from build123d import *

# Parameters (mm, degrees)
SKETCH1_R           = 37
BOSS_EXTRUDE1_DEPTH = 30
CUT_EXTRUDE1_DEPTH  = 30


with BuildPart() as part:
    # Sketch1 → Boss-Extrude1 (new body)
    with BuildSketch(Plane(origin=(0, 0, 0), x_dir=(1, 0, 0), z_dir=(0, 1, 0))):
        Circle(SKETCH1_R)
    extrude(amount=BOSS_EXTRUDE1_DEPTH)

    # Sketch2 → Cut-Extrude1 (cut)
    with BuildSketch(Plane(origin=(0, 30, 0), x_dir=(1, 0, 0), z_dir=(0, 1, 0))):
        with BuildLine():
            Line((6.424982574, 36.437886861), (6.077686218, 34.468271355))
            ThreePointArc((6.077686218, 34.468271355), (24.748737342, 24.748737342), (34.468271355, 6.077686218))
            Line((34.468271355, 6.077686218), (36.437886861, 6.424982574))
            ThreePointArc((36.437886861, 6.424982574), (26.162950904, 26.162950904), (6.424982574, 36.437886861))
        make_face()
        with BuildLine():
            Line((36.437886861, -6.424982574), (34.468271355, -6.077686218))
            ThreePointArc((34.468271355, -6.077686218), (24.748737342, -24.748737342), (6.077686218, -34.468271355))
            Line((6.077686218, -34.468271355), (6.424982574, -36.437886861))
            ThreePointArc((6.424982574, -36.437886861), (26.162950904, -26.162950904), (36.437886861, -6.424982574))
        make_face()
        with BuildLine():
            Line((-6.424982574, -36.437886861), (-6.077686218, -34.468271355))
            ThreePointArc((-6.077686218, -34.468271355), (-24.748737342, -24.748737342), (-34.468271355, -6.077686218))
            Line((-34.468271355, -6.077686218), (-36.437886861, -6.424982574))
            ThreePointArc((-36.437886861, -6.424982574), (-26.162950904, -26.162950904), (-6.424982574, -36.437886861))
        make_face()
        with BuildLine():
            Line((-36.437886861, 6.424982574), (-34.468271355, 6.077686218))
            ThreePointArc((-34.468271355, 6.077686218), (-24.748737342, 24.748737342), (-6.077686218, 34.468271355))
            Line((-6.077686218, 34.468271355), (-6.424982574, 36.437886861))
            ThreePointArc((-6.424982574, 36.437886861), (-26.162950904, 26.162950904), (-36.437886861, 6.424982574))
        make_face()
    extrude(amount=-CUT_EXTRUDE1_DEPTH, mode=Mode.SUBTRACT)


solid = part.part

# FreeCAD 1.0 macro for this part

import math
import FreeCAD as App
import Part
import Sketcher

V = App.Vector
Q = App.Units.Quantity

doc = App.newDocument("Part")
params = doc.addObject("Spreadsheet::Sheet", "Params")
for row, (alias, value) in enumerate([
    ("sketch1_diameter", "74 mm"),
    ("pad1_length", "30 mm"),
    ("sketch2_radius", "35 mm"),
    ("sketch2_radius2", "37 mm"),
    ("pocket1_length", "30 mm"),
], start=1):
    params.set(f"A{row}", alias)
    params.set(f"B{row}", "=" + value)
    params.setAlias(f"B{row}", alias)

body = doc.addObject("PartDesign::Body", "Body")

# Sketch on XZ plane
sketch1 = body.newObject("Sketcher::SketchObject", "Sketch")
sketch1.AttachmentSupport = (doc.getObject("XZ_Plane"), [""])
sketch1.MapMode = "FlatFace"
sketch1.addGeometry(Part.Circle(V(0, 0, 0), V(0, 0, 1), 37), False)
sketch1.addConstraint(Sketcher.Constraint("Coincident", 0, 3, -1, 1))
sketch1.addConstraint(Sketcher.Constraint("Diameter", 0, Q("74 mm")))
sketch1.setExpression("Constraints[1]", "Params.sketch1_diameter")
pad1 = body.newObject("PartDesign::Pad", "Pad")
pad1.Profile = sketch1
pad1.setExpression("Length", "Params.pad1_length")
pad1.Reversed = True

# Sketch on XZ plane
sketch2 = body.newObject("Sketcher::SketchObject", "Sketch001")
sketch2.AttachmentSupport = (doc.getObject("XZ_Plane"), [""])
sketch2.MapMode = "FlatFace"
sketch2.AttachmentOffset = App.Placement(V(0, 0, -30), App.Rotation())
sketch2.addGeometry(Part.LineSegment(V(6.4, -36.4, 0), V(6.1, -34.5, 0)), False)
sketch2.addGeometry(Part.ArcOfCircle(Part.Circle(V(0, 0, 0), V(0, 0, 1), 35), math.radians(-80), math.radians(-10)), False)
sketch2.addGeometry(Part.LineSegment(V(34.5, -6.1, 0), V(36.4, -6.4, 0)), False)
sketch2.addGeometry(Part.ArcOfCircle(Part.Circle(V(0, 0, 0), V(0, 0, 1), 37), math.radians(-80), math.radians(-10)), False)
sketch2.addGeometry(Part.LineSegment(V(36.4, 6.4, 0), V(34.5, 6.1, 0)), False)
sketch2.addGeometry(Part.ArcOfCircle(Part.Circle(V(0, 0, 0), V(0, 0, 1), 35), math.radians(10), math.radians(80)), False)
sketch2.addGeometry(Part.LineSegment(V(6.1, 34.5, 0), V(6.4, 36.4, 0)), False)
sketch2.addGeometry(Part.ArcOfCircle(Part.Circle(V(0, 0, 0), V(0, 0, 1), 37), math.radians(10), math.radians(80)), False)
sketch2.addGeometry(Part.LineSegment(V(-6.4, 36.4, 0), V(-6.1, 34.5, 0)), False)
sketch2.addGeometry(Part.ArcOfCircle(Part.Circle(V(0, 0, 0), V(0, 0, 1), 35), math.radians(100), math.radians(170)), False)
sketch2.addGeometry(Part.LineSegment(V(-34.5, 6.1, 0), V(-36.4, 6.4, 0)), False)
sketch2.addGeometry(Part.ArcOfCircle(Part.Circle(V(0, 0, 0), V(0, 0, 1), 37), math.radians(100), math.radians(170)), False)
sketch2.addGeometry(Part.LineSegment(V(-36.4, -6.4, 0), V(-34.5, -6.1, 0)), False)
sketch2.addGeometry(Part.ArcOfCircle(Part.Circle(V(0, 0, 0), V(0, 0, 1), 35), math.radians(-170), math.radians(-100)), False)
sketch2.addGeometry(Part.LineSegment(V(-6.1, -34.5, 0), V(-6.4, -36.4, 0)), False)
sketch2.addGeometry(Part.ArcOfCircle(Part.Circle(V(0, 0, 0), V(0, 0, 1), 37), math.radians(-170), math.radians(-100)), False)
sketch2.addConstraint(Sketcher.Constraint("Coincident", 0, 2, 1, 1))
sketch2.addConstraint(Sketcher.Constraint("Coincident", 1, 2, 2, 1))
sketch2.addConstraint(Sketcher.Constraint("Coincident", 2, 2, 3, 2))
sketch2.addConstraint(Sketcher.Constraint("Coincident", 3, 1, 0, 1))
sketch2.addConstraint(Sketcher.Constraint("Coincident", 4, 2, 5, 1))
sketch2.addConstraint(Sketcher.Constraint("Coincident", 5, 2, 6, 1))
sketch2.addConstraint(Sketcher.Constraint("Coincident", 6, 2, 7, 2))
sketch2.addConstraint(Sketcher.Constraint("Coincident", 7, 1, 4, 1))
sketch2.addConstraint(Sketcher.Constraint("Coincident", 8, 2, 9, 1))
sketch2.addConstraint(Sketcher.Constraint("Coincident", 9, 2, 10, 1))
sketch2.addConstraint(Sketcher.Constraint("Coincident", 10, 2, 11, 2))
sketch2.addConstraint(Sketcher.Constraint("Coincident", 11, 1, 8, 1))
sketch2.addConstraint(Sketcher.Constraint("Coincident", 12, 2, 13, 1))
sketch2.addConstraint(Sketcher.Constraint("Coincident", 13, 2, 14, 1))
sketch2.addConstraint(Sketcher.Constraint("Coincident", 14, 2, 15, 2))
sketch2.addConstraint(Sketcher.Constraint("Coincident", 15, 1, 12, 1))
sketch2.addConstraint(Sketcher.Constraint("Coincident", 1, 3, -1, 1))
sketch2.addConstraint(Sketcher.Constraint("Coincident", 3, 3, -1, 1))
sketch2.addConstraint(Sketcher.Constraint("Coincident", 5, 3, -1, 1))
sketch2.addConstraint(Sketcher.Constraint("Coincident", 7, 3, -1, 1))
sketch2.addConstraint(Sketcher.Constraint("Coincident", 9, 3, -1, 1))
sketch2.addConstraint(Sketcher.Constraint("Coincident", 11, 3, -1, 1))
sketch2.addConstraint(Sketcher.Constraint("Coincident", 13, 3, -1, 1))
sketch2.addConstraint(Sketcher.Constraint("Coincident", 15, 3, -1, 1))
sketch2.addConstraint(Sketcher.Constraint("Equal", 1, 5))
sketch2.addConstraint(Sketcher.Constraint("Equal", 3, 7))
sketch2.addConstraint(Sketcher.Constraint("Equal", 5, 9))
sketch2.addConstraint(Sketcher.Constraint("Equal", 7, 11))
sketch2.addConstraint(Sketcher.Constraint("Equal", 9, 13))
sketch2.addConstraint(Sketcher.Constraint("Equal", 11, 15))
sketch2.addConstraint(Sketcher.Constraint("Perpendicular", 0, 4))
sketch2.addConstraint(Sketcher.Constraint("Perpendicular", 2, 6))
sketch2.addConstraint(Sketcher.Constraint("Perpendicular", 4, 8))
sketch2.addConstraint(Sketcher.Constraint("Perpendicular", 6, 10))
sketch2.addConstraint(Sketcher.Constraint("Perpendicular", 8, 12))
sketch2.addConstraint(Sketcher.Constraint("Perpendicular", 10, 14))
sketch2.addConstraint(Sketcher.Constraint("Horizontal", 5, 2, 8, 2))
sketch2.addConstraint(Sketcher.Constraint("Horizontal", 4, 2, 9, 2))
sketch2.addConstraint(Sketcher.Constraint("Horizontal", 7, 1, 10, 2))
sketch2.addConstraint(Sketcher.Constraint("Horizontal", 1, 2, 12, 2))
sketch2.addConstraint(Sketcher.Constraint("Horizontal", 0, 2, 13, 2))
sketch2.addConstraint(Sketcher.Constraint("Vertical", 1, 2, 4, 2))
sketch2.addConstraint(Sketcher.Constraint("Vertical", 0, 2, 5, 2))
sketch2.addConstraint(Sketcher.Constraint("Radius", 1, Q("35 mm")))
sketch2.addConstraint(Sketcher.Constraint("Radius", 3, Q("37 mm")))
sketch2.addConstraint(Sketcher.Constraint("Angle", 0, Q("100 deg")))
sketch2.addConstraint(Sketcher.Constraint("DistanceY", 0, 2, -1, 1, Q("34.468271 mm")))
sketch2.addConstraint(Sketcher.Constraint("DistanceX", -1, 1, 1, 2, Q("34.468271 mm")))
sketch2.setExpression("Constraints[43]", "Params.sketch2_radius")
sketch2.setExpression("Constraints[44]", "Params.sketch2_radius2")
pocket1 = body.newObject("PartDesign::Pocket", "Pocket")
pocket1.Profile = sketch2
pocket1.setExpression("Length", "Params.pocket1_length")
pocket1.Reversed = True

doc.recompute()
